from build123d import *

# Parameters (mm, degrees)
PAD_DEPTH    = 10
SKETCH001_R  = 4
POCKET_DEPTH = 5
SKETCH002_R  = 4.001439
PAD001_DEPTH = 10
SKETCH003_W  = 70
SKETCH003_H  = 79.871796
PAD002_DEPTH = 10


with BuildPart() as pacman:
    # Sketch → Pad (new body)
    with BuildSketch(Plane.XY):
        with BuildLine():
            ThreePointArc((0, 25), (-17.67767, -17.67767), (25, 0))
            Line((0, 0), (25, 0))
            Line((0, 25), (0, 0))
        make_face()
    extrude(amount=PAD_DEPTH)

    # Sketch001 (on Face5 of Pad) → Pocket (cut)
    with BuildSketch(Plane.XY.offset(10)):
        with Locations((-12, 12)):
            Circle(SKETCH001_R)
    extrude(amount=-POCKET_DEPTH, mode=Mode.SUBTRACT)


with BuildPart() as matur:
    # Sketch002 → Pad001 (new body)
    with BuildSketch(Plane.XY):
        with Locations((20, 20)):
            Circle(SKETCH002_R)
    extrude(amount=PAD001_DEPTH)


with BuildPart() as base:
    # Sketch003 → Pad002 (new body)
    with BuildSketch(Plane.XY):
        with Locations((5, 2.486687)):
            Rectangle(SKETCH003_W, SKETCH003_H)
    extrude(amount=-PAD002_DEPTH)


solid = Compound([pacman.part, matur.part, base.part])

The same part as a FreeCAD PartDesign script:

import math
import FreeCAD as App
import Part
import Sketcher


def add_polygon(sketch, points):
    """Adds a closed chain of lines whose ends are joined by coincident constraints."""
    first, n = sketch.GeometryCount, len(points)
    for a, b in zip(points, points[1:] + points[:1]):
        sketch.addGeometry(Part.LineSegment(App.Vector(*a, 0), App.Vector(*b, 0)), False)
    for i in range(n):
        sketch.addConstraint(Sketcher.Constraint("Coincident", first + i, 2, first + (i + 1) % n, 1))

doc = App.newDocument("Part")
body = doc.addObject("PartDesign::Body", "Body")

# Sketch on XY plane
sketch1 = doc.addObject("Sketcher::SketchObject", "Sketch")
body.addObject(sketch1)
sketch1.AttachmentSupport = (doc.XY_Plane, [""])
sketch1.MapMode = "FlatFace"
sketch1.addGeometry([
    Part.ArcOfCircle(Part.Circle(App.Vector(0, 0, 0), App.Vector(0, 0, 1), 25), math.radians(90), math.radians(360)),
    Part.LineSegment(App.Vector(25, 0, 0), App.Vector(0, 0, 0)),
    Part.LineSegment(App.Vector(0, 0, 0), App.Vector(0, 25, 0)),
], False)
sketch1.addConstraint([
    Sketcher.Constraint("Coincident", 0, 2, 1, 1),
    Sketcher.Constraint("Coincident", 1, 2, 2, 1),
    Sketcher.Constraint("Coincident", 2, 2, 0, 1),
    Sketcher.Constraint("Horizontal", 1),
    Sketcher.Constraint("Vertical", 2),
    Sketcher.Constraint("Coincident", 0, 3, -1, 1),
    Sketcher.Constraint("Coincident", 1, 2, -1, 1),
    Sketcher.Constraint("Radius", 0, 25.0),
])
pad1 = doc.addObject("PartDesign::Pad", "Pad")
body.addObject(pad1)
pad1.Profile = sketch1
pad1.Length = 10

# Sketch on XY plane
sketch2 = doc.addObject("Sketcher::SketchObject", "Sketch001")
body.addObject(sketch2)
sketch2.AttachmentSupport = (doc.XY_Plane, [""])
sketch2.MapMode = "FlatFace"
sketch2.AttachmentOffset = App.Placement(App.Vector(0, 0, 10), App.Rotation())
sketch2.addGeometry(Part.Circle(App.Vector(-12, 12, 0), App.Vector(0, 0, 1), 4), False)
sketch2.addConstraint([
    Sketcher.Constraint("Diameter", 0, 8.0),
    Sketcher.Constraint("DistanceX", 0, 3, -1, 1, 12.0),
    Sketcher.Constraint("DistanceY", -1, 1, 0, 3, 12.0),
])
pocket1 = doc.addObject("PartDesign::Pocket", "Pocket")
body.addObject(pocket1)
pocket1.Profile = sketch2
pocket1.Length = 5
body2 = doc.addObject("PartDesign::Body", "Body001")

# Sketch on XY plane
sketch3 = doc.addObject("Sketcher::SketchObject", "Sketch002")
body2.addObject(sketch3)
sketch3.AttachmentSupport = (doc.getObject("XY_Plane001"), [""])
sketch3.MapMode = "FlatFace"
sketch3.addGeometry(Part.Circle(App.Vector(20, 20, 0), App.Vector(0, 0, 1), 4), False)
sketch3.addConstraint([
    Sketcher.Constraint("DistanceX", -1, 1, 0, 3, 20.0),
    Sketcher.Constraint("DistanceY", -1, 1, 0, 3, 20.0),
    Sketcher.Constraint("Diameter", 0, 8.002878),
])
pad2 = doc.addObject("PartDesign::Pad", "Pad001")
body2.addObject(pad2)
pad2.Profile = sketch3
pad2.Length = 10
body3 = doc.addObject("PartDesign::Body", "Body002")

# Sketch on XY plane
sketch4 = doc.addObject("Sketcher::SketchObject", "Sketch003")
body3.addObject(sketch4)
sketch4.AttachmentSupport = (doc.getObject("XY_Plane002"), [""])
sketch4.MapMode = "FlatFace"
add_polygon(sketch4, [(-30, 42), (-30, -37), (40, -37), (40, 42)])  # lines 0-3
sketch4.addConstraint([
    Sketcher.Constraint("Vertical", 0),
    Sketcher.Constraint("Horizontal", 1),
    Sketcher.Constraint("Vertical", 2),
    Sketcher.Constraint("Horizontal", 3),
    Sketcher.Constraint("DistanceX", 1, 1, 1, 2, 70.0),
    Sketcher.Constraint("DistanceX", 0, 2, -1, 1, 30.0),
    Sketcher.Constraint("DistanceY", 0, 2, 0, 1, 79.871796),
    Sketcher.Constraint("DistanceY", 0, 2, -1, 1, 37.449211),
])
pad3 = doc.addObject("PartDesign::Pad", "Pad002")
body3.addObject(pad3)
pad3.Profile = sketch4
pad3.Length = 10
pad3.Reversed = True

doc.recompute()
